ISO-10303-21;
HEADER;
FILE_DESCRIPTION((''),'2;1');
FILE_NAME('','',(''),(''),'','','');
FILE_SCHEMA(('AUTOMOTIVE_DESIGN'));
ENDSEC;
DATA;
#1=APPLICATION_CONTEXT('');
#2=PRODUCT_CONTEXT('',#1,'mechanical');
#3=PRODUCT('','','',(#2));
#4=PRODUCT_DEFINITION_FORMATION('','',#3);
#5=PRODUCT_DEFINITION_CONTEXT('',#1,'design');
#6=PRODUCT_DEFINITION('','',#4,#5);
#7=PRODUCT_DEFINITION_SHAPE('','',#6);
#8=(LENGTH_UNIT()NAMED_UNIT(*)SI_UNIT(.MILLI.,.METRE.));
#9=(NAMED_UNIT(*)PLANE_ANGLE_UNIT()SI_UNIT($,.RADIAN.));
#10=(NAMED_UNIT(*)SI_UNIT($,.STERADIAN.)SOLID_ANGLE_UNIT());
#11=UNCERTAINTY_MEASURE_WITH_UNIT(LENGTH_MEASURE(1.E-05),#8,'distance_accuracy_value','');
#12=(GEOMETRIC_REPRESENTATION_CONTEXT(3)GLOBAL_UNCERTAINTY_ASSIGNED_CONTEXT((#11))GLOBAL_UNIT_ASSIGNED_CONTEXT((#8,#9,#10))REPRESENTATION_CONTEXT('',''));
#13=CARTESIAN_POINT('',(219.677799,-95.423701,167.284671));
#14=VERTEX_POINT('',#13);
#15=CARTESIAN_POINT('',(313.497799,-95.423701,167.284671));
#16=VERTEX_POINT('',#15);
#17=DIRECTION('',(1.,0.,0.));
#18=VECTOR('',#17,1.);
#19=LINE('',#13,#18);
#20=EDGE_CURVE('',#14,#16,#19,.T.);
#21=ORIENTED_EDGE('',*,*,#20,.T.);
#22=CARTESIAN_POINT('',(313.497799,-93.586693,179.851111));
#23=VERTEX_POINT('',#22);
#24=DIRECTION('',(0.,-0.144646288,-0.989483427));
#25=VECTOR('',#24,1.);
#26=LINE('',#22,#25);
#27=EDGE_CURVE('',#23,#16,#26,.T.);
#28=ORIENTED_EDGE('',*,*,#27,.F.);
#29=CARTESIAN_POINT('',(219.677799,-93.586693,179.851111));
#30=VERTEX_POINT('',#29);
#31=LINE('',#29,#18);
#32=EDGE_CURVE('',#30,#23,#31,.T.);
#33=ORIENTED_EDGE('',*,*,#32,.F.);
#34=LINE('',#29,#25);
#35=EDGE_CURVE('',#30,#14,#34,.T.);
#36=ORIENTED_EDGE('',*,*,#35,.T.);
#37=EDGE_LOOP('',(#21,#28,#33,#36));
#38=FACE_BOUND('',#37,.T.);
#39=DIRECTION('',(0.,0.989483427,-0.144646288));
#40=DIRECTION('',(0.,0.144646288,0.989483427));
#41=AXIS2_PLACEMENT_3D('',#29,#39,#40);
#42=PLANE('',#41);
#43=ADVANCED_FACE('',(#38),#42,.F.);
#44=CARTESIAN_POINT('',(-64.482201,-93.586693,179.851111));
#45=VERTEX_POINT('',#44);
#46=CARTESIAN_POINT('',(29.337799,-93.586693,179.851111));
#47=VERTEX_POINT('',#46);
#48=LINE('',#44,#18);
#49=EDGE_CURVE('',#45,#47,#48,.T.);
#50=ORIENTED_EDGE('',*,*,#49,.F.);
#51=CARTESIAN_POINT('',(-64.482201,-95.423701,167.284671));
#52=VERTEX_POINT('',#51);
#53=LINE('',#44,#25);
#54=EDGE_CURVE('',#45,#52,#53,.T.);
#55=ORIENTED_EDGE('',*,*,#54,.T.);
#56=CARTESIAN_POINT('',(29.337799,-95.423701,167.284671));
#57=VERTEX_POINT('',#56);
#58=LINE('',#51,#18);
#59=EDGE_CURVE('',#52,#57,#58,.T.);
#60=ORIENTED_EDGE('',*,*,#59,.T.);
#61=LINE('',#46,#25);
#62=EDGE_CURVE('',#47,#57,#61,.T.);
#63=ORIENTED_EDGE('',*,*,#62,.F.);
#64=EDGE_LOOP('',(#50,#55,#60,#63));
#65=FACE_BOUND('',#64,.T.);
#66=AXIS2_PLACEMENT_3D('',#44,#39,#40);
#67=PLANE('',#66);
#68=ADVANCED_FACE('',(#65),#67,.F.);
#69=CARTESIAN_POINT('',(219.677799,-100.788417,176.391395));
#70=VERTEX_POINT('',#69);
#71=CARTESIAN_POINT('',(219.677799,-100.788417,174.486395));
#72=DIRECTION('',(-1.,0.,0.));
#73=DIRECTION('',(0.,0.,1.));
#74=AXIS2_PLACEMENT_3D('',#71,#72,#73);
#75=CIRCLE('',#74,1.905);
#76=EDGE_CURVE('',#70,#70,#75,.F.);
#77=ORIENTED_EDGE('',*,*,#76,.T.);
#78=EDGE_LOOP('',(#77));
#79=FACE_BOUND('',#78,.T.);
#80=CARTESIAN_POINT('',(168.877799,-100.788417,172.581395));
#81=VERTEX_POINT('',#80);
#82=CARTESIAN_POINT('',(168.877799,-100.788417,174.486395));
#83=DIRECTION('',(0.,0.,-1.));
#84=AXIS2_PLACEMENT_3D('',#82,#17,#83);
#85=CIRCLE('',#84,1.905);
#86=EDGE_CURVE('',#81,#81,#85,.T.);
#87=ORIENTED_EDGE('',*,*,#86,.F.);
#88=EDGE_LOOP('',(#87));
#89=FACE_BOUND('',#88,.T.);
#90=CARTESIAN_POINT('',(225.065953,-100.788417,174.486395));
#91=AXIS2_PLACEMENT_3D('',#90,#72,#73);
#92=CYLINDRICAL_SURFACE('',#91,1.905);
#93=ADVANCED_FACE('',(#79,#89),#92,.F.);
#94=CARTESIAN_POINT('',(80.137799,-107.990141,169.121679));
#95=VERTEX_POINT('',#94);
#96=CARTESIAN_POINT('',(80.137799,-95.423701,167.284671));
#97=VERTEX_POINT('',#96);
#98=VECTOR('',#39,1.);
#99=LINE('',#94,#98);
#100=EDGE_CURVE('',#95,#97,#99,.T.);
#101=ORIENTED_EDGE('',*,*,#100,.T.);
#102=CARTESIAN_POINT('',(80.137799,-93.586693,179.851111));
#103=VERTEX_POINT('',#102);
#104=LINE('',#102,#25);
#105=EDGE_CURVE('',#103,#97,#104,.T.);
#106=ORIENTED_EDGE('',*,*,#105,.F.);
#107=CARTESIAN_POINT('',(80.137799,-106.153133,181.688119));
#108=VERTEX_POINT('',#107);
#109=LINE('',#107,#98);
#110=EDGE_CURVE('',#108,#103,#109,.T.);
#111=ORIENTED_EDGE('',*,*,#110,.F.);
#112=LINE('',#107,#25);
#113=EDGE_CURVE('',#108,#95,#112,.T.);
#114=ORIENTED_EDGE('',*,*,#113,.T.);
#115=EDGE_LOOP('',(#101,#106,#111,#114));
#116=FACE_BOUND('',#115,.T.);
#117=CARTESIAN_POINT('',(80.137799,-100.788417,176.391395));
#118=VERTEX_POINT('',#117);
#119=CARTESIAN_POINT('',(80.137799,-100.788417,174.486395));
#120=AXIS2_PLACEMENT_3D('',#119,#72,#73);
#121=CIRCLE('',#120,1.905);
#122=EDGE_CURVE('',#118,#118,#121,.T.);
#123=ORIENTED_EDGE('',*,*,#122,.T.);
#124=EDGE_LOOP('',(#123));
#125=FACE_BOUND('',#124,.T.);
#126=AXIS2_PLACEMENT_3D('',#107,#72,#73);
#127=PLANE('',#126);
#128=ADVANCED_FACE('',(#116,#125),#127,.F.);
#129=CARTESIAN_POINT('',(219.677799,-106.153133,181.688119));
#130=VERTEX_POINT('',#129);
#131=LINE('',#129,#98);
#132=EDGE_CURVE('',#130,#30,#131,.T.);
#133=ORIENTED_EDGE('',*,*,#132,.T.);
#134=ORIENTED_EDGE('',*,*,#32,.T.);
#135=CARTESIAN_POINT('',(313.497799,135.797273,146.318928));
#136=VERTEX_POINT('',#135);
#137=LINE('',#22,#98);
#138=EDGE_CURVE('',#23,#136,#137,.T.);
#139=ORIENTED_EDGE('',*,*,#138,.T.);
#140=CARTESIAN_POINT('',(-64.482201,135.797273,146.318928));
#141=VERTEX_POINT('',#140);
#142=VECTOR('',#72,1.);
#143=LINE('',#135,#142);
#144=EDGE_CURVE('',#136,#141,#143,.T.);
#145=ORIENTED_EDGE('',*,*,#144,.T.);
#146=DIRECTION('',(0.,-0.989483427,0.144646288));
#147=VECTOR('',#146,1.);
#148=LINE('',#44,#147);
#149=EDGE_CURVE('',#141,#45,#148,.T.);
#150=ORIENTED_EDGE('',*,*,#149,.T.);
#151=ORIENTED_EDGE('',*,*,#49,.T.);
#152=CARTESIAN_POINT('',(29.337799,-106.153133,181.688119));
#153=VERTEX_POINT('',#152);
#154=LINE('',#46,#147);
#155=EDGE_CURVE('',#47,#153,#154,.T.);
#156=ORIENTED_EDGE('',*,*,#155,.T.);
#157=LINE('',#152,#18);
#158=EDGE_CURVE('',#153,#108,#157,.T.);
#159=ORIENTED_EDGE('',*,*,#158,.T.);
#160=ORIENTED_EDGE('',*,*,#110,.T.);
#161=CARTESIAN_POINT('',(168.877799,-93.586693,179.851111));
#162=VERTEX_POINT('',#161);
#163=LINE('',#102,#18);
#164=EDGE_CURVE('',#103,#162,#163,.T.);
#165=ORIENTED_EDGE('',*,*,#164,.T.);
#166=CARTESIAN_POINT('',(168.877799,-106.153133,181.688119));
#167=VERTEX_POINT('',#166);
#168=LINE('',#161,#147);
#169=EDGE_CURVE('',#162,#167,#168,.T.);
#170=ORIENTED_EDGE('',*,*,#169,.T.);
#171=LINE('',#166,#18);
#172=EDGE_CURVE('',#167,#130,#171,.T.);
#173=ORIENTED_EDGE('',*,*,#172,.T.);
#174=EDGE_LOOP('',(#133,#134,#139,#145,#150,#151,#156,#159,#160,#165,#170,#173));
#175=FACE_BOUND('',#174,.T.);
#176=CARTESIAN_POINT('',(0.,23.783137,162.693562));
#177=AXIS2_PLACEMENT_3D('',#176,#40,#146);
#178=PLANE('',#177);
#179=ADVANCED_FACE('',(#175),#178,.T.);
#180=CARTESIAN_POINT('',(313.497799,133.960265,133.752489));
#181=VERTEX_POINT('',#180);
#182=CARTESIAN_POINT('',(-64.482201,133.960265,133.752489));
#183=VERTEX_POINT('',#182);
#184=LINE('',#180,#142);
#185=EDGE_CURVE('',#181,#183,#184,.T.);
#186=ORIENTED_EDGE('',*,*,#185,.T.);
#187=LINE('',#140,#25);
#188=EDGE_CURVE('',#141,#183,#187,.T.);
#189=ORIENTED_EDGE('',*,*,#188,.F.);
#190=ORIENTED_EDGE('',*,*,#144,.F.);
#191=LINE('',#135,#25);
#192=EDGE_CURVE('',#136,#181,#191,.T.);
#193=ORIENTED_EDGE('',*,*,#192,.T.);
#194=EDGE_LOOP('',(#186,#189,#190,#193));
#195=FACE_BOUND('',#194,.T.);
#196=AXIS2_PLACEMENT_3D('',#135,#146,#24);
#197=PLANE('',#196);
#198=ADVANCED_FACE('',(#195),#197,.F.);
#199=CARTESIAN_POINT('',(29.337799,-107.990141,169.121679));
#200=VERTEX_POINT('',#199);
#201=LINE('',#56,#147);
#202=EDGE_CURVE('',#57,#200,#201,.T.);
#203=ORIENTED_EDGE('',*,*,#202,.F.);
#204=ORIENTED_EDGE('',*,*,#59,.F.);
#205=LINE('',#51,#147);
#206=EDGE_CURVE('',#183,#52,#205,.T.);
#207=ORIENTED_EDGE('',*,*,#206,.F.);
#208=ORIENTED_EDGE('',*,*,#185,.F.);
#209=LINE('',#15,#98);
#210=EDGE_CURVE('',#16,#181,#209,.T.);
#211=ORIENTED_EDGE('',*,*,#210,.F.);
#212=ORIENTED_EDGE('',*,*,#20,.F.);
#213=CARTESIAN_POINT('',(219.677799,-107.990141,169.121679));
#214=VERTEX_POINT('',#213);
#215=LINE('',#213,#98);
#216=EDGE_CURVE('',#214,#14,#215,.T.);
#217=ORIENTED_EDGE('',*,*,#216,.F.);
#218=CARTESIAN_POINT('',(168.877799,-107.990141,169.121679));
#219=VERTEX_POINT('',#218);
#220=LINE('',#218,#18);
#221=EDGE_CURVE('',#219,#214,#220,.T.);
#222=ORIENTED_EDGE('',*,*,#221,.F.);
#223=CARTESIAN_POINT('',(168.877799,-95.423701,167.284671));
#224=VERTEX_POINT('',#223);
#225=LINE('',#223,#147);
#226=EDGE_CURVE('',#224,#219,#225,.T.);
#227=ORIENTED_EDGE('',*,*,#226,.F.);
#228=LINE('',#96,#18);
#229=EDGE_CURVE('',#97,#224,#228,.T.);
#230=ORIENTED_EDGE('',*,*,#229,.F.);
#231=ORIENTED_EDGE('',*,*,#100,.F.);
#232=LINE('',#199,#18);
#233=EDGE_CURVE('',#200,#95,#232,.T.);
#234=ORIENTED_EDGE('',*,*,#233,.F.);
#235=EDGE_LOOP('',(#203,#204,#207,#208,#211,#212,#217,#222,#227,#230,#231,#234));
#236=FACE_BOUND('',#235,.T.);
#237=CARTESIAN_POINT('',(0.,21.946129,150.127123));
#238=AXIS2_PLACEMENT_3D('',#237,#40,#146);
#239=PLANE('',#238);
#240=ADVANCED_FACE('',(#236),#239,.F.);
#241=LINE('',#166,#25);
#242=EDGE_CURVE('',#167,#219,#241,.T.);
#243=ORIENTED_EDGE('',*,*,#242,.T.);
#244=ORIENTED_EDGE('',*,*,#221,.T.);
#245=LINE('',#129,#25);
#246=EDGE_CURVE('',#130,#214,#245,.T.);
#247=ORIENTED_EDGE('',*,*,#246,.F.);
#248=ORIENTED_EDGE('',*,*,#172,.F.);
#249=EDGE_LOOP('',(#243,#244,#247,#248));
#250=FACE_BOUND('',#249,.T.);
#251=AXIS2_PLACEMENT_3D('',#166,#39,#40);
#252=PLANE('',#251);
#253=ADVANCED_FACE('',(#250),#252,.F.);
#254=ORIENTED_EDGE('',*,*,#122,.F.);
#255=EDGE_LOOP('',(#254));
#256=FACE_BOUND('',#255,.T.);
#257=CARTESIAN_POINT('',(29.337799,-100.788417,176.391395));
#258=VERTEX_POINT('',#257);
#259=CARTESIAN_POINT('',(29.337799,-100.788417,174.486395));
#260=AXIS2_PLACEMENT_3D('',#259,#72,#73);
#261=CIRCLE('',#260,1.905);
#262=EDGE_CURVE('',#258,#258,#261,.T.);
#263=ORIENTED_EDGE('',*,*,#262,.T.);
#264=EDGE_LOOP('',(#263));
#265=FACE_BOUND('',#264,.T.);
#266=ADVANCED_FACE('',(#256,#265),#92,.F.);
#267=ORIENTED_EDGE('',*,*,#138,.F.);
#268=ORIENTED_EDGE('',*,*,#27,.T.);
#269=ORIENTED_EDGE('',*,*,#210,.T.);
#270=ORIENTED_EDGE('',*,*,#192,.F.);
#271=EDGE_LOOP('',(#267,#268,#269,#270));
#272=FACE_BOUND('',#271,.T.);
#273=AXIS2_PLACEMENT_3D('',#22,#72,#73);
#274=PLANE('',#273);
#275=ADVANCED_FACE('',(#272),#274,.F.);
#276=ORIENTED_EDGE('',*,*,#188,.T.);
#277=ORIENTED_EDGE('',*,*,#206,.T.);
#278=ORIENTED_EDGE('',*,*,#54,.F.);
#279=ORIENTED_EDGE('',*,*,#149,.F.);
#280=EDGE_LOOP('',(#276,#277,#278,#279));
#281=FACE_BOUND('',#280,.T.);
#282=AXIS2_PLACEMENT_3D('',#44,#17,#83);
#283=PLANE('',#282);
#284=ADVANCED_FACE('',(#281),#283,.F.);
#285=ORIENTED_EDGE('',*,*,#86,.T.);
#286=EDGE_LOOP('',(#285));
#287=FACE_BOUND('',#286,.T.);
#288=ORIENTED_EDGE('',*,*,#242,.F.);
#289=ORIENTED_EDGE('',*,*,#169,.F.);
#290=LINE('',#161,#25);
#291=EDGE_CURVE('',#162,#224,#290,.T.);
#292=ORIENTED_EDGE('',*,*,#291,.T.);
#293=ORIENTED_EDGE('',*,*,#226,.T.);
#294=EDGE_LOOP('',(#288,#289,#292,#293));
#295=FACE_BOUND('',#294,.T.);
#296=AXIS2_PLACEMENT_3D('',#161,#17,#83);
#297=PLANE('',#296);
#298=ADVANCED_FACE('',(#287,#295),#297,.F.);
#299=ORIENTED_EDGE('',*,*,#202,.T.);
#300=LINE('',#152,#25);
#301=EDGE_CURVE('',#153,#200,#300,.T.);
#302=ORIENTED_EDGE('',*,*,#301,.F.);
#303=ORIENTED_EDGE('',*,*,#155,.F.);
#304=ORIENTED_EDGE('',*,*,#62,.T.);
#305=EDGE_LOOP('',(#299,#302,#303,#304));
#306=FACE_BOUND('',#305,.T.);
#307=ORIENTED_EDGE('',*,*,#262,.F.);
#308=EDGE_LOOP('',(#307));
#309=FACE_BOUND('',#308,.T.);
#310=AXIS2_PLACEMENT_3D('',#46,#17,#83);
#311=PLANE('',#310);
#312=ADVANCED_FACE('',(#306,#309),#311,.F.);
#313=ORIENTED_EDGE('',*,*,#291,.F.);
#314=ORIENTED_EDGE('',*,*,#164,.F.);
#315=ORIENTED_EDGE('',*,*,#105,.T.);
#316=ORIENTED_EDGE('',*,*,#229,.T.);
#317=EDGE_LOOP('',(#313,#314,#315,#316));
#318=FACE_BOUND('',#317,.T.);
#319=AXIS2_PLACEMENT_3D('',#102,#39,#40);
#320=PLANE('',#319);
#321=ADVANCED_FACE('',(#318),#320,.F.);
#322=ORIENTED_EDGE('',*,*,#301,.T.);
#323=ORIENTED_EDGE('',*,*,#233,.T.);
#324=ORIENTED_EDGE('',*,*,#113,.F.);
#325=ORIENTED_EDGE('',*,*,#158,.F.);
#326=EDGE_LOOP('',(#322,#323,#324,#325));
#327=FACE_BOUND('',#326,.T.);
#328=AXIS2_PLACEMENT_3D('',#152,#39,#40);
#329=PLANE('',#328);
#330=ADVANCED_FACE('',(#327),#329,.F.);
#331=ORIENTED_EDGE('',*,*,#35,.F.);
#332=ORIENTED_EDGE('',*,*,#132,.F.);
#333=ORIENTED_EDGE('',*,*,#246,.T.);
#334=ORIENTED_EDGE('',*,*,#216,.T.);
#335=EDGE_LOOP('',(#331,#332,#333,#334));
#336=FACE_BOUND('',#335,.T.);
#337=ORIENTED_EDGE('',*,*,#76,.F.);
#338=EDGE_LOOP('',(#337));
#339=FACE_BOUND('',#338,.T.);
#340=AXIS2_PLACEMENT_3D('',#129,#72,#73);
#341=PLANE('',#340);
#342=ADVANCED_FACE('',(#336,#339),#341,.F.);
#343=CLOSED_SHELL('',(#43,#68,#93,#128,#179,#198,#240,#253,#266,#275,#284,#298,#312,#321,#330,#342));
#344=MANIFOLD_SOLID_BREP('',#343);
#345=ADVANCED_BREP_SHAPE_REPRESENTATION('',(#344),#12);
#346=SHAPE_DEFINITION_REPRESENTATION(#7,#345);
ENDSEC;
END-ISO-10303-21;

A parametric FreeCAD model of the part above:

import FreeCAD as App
import Part
import Sketcher

V = App.Vector
Q = App.Units.Quantity

doc = App.newDocument("Part")
params = doc.addObject("Spreadsheet::Sheet", "Params")
for row, (alias, value) in enumerate([
    ("sketch1_width", "2 in"),
    ("sketch1_height", "0.5 in"),
    ("pad1_length", "0.5 in"),
    ("sketch2_diameter", "0.15 in"),
    ("pocket1_length", "190.34 mm"),
], start=1):
    params.set(f"A{row}", alias)
    params.set(f"B{row}", "=" + value)
    params.setAlias(f"B{row}", alias)

body = doc.addObject("PartDesign::Body", "Body")

sketch1 = body.newObject("Sketcher::SketchObject", "Sketch")
sketch1.Placement = App.Placement(V(0, 21.9451, 150.127273), App.Rotation(V(1, 0, 0), V(0, 0.989483427, -0.144646288), V(0, 0.144646288, 0.989483427), "ZXY"))
sketch1.addGeometry(Part.LineSegment(V(-64, -119, 0), V(29, -119, 0)), False)
sketch1.addGeometry(Part.LineSegment(V(29, -119, 0), V(29, -131, 0)), False)
sketch1.addGeometry(Part.LineSegment(V(29, -131, 0), V(80, -131, 0)), False)
sketch1.addGeometry(Part.LineSegment(V(80, -131, 0), V(80, -119, 0)), False)
sketch1.addGeometry(Part.LineSegment(V(80, -119, 0), V(169, -119, 0)), False)
sketch1.addGeometry(Part.LineSegment(V(169, -119, 0), V(169, -131, 0)), False)
sketch1.addGeometry(Part.LineSegment(V(169, -131, 0), V(220, -131, 0)), False)
sketch1.addGeometry(Part.LineSegment(V(220, -131, 0), V(220, -119, 0)), False)
sketch1.addGeometry(Part.LineSegment(V(220, -119, 0), V(313, -119, 0)), False)
sketch1.addGeometry(Part.LineSegment(V(313, -119, 0), V(313, 113, 0)), False)
sketch1.addGeometry(Part.LineSegment(V(313, 113, 0), V(-64, 113, 0)), False)
sketch1.addGeometry(Part.LineSegment(V(-64, 113, 0), V(-64, -119, 0)), False)
sketch1.addConstraint(Sketcher.Constraint("Coincident", 0, 2, 1, 1))
sketch1.addConstraint(Sketcher.Constraint("Coincident", 1, 2, 2, 1))
sketch1.addConstraint(Sketcher.Constraint("Coincident", 2, 2, 3, 1))
sketch1.addConstraint(Sketcher.Constraint("Coincident", 3, 2, 4, 1))
sketch1.addConstraint(Sketcher.Constraint("Coincident", 4, 2, 5, 1))
sketch1.addConstraint(Sketcher.Constraint("Coincident", 5, 2, 6, 1))
sketch1.addConstraint(Sketcher.Constraint("Coincident", 6, 2, 7, 1))
sketch1.addConstraint(Sketcher.Constraint("Coincident", 7, 2, 8, 1))
sketch1.addConstraint(Sketcher.Constraint("Coincident", 8, 2, 9, 1))
sketch1.addConstraint(Sketcher.Constraint("Coincident", 9, 2, 10, 1))
sketch1.addConstraint(Sketcher.Constraint("Coincident", 10, 2, 11, 1))
sketch1.addConstraint(Sketcher.Constraint("Coincident", 11, 2, 0, 1))
sketch1.addConstraint(Sketcher.Constraint("Horizontal", 0))
sketch1.addConstraint(Sketcher.Constraint("Vertical", 1))
sketch1.addConstraint(Sketcher.Constraint("Horizontal", 2))
sketch1.addConstraint(Sketcher.Constraint("Vertical", 3))
sketch1.addConstraint(Sketcher.Constraint("Horizontal", 4))
sketch1.addConstraint(Sketcher.Constraint("Vertical", 5))
sketch1.addConstraint(Sketcher.Constraint("Horizontal", 6))
sketch1.addConstraint(Sketcher.Constraint("Vertical", 7))
sketch1.addConstraint(Sketcher.Constraint("Horizontal", 8))
sketch1.addConstraint(Sketcher.Constraint("Vertical", 9))
sketch1.addConstraint(Sketcher.Constraint("Horizontal", 10))
sketch1.addConstraint(Sketcher.Constraint("Vertical", 11))
sketch1.addConstraint(Sketcher.Constraint("Horizontal", 0, 2, 3, 2))
sketch1.addConstraint(Sketcher.Constraint("Horizontal", 2, 2, 5, 2))
sketch1.addConstraint(Sketcher.Constraint("Horizontal", 4, 2, 7, 2))
sketch1.addConstraint(Sketcher.Constraint("Equal", 2, 6))
sketch1.addConstraint(Sketcher.Constraint("Equal", 0, 8))
sketch1.addConstraint(Sketcher.Constraint("DistanceX", 2, 1, 2, 2, Q("2 in")))
sketch1.addConstraint(Sketcher.Constraint("DistanceY", 1, 2, 1, 1, Q("0.5 in")))
sketch1.addConstraint(Sketcher.Constraint("DistanceX", 0, 1, 0, 2, 93.82))
sketch1.addConstraint(Sketcher.Constraint("DistanceX", 4, 1, 4, 2, 88.74))
sketch1.addConstraint(Sketcher.Constraint("DistanceY", 9, 1, 9, 2, 231.821939))
sketch1.addConstraint(Sketcher.Constraint("DistanceX", -1, 1, 0, 2, 29.337799))
sketch1.addConstraint(Sketcher.Constraint("DistanceY", -1, 1, 9, 2, 113.205701))
sketch1.setExpression("Constraints[29]", "Params.sketch1_width")
sketch1.setExpression("Constraints[30]", "Params.sketch1_height")
pad1 = body.newObject("PartDesign::Pad", "Pad")
pad1.Profile = sketch1
pad1.setExpression("Length", "Params.pad1_length")

sketch2 = body.newObject("Sketcher::SketchObject", "Sketch001")
sketch2.AttachmentSupport = (doc.getObject("YZ_Plane"), [""])
sketch2.MapMode = "FlatFace"
sketch2.AttachmentOffset = App.Placement(V(0, 0, 29.337799), App.Rotation())
sketch2.addGeometry(Part.Circle(V(-100.8, 174.5, 0), V(0, 0, 1), 1.9), False)
sketch2.addConstraint(Sketcher.Constraint("Diameter", 0, Q("0.15 in")))
sketch2.addConstraint(Sketcher.Constraint("DistanceX", 0, 3, -1, 1, 100.788417))
sketch2.addConstraint(Sketcher.Constraint("DistanceY", -1, 1, 0, 3, 174.486395))
sketch2.setExpression("Constraints[0]", "Params.sketch2_diameter")
pocket1 = body.newObject("PartDesign::Pocket", "Pocket")
pocket1.Profile = sketch2
pocket1.setExpression("Length", "Params.pocket1_length")
pocket1.Reversed = True

doc.recompute()
